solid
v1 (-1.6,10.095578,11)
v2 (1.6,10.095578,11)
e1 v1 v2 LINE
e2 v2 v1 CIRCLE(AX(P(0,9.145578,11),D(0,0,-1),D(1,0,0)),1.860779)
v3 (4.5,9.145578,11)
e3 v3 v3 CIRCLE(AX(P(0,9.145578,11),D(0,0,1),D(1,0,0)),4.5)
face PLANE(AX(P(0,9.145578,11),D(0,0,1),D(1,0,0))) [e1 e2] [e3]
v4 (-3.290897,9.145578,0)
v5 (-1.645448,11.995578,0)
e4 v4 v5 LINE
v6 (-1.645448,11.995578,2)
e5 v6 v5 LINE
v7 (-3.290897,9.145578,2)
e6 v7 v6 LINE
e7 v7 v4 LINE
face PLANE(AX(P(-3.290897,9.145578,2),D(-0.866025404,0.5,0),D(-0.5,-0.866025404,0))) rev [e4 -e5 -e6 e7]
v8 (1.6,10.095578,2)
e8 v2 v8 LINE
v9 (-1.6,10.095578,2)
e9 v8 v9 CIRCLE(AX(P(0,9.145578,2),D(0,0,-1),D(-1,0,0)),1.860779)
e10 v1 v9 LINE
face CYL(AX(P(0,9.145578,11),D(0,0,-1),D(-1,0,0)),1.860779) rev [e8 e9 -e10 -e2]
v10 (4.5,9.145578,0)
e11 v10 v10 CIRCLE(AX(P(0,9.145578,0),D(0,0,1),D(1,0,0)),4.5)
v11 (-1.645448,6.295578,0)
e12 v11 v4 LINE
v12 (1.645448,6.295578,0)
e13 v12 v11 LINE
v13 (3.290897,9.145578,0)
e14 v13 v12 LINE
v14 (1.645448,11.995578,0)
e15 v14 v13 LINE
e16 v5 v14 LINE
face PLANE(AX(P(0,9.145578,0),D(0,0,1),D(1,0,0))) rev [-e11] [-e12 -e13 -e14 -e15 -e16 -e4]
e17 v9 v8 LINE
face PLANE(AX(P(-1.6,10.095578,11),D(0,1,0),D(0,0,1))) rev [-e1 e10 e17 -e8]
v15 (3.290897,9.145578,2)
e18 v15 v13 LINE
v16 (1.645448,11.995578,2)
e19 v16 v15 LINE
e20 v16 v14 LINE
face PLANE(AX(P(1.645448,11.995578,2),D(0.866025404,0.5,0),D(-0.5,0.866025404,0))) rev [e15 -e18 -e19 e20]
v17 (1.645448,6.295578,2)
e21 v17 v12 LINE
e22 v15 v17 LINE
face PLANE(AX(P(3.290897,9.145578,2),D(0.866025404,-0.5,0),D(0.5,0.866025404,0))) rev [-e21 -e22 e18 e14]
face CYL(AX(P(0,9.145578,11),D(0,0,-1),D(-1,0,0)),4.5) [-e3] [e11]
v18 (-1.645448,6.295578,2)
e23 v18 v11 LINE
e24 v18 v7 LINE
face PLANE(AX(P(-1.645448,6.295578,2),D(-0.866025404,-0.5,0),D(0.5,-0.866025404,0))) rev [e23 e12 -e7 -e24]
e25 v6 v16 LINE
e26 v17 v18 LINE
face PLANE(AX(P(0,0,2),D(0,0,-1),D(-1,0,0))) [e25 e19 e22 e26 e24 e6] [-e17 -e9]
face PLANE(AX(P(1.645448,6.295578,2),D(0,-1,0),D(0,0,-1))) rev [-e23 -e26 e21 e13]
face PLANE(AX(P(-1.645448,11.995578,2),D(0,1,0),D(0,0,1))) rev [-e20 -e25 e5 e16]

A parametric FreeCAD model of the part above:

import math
import FreeCAD as App
import Part
import Sketcher
from FreeCAD import Vector
Q = App.Units.Quantity

doc = App.newDocument("Part")
body = doc.addObject("PartDesign::Body", "Body")

# Sketch on XY plane
sketch1 = body.newObject("Sketcher::SketchObject", "Sketch")
sketch1.AttachmentSupport = (doc.getObject("XY_Plane"), [""])
sketch1.MapMode = "FlatFace"
sketch1.addGeometry(Part.Circle(Vector(0, 9.1, 0), Vector(0, 0, 1), 4.5), False)
sketch1.addConstraint(Sketcher.Constraint("PointOnObject", 0, 3, -2))
sketch1.addConstraint(Sketcher.Constraint("Diameter", 0, Q("9 mm")))
sketch1.addConstraint(Sketcher.Constraint("DistanceY", -1, 1, 0, 3, Q("9.145578 mm")))
pad1 = body.newObject("PartDesign::Pad", "Pad")
pad1.Profile = sketch1
pad1.Length = 11

# Sketch on XY plane
sketch2 = body.newObject("Sketcher::SketchObject", "Sketch001")
sketch2.AttachmentSupport = (doc.getObject("XY_Plane"), [""])
sketch2.MapMode = "FlatFace"
sketch2.addGeometry(Part.LineSegment(Vector(-3.3, 9.1, 0), Vector(-1.6, 12, 0)), False)
sketch2.addGeometry(Part.LineSegment(Vector(-1.6, 12, 0), Vector(1.6, 12, 0)), False)
sketch2.addGeometry(Part.LineSegment(Vector(1.6, 12, 0), Vector(3.3, 9.1, 0)), False)
sketch2.addGeometry(Part.LineSegment(Vector(3.3, 9.1, 0), Vector(1.6, 6.3, 0)), False)
sketch2.addGeometry(Part.LineSegment(Vector(1.6, 6.3, 0), Vector(-1.6, 6.3, 0)), False)
sketch2.addGeometry(Part.LineSegment(Vector(-1.6, 6.3, 0), Vector(-3.3, 9.1, 0)), False)
sketch2.addConstraint(Sketcher.Constraint("Coincident", 0, 2, 1, 1))
sketch2.addConstraint(Sketcher.Constraint("Coincident", 1, 2, 2, 1))
sketch2.addConstraint(Sketcher.Constraint("Coincident", 2, 2, 3, 1))
sketch2.addConstraint(Sketcher.Constraint("Coincident", 3, 2, 4, 1))
sketch2.addConstraint(Sketcher.Constraint("Coincident", 4, 2, 5, 1))
sketch2.addConstraint(Sketcher.Constraint("Coincident", 5, 2, 0, 1))
sketch2.addConstraint(Sketcher.Constraint("Horizontal", 1))
sketch2.addConstraint(Sketcher.Constraint("Horizontal", 4))
sketch2.addConstraint(Sketcher.Constraint("Symmetric", 2, 2, 5, 2, -2))
sketch2.addConstraint(Sketcher.Constraint("Parallel", 0, 3))
sketch2.addConstraint(Sketcher.Constraint("Parallel", 2, 5))
sketch2.addConstraint(Sketcher.Constraint("Vertical", 1, 2, 3, 2))
sketch2.addConstraint(Sketcher.Constraint("Vertical", 0, 2, 4, 2))
sketch2.addConstraint(Sketcher.Constraint("Angle", 0, Q("60 deg")))
sketch2.addConstraint(Sketcher.Constraint("DistanceY", 3, 2, 1, 2, Q("5.7 mm")))
sketch2.addConstraint(Sketcher.Constraint("DistanceX", 1, 1, 1, 2, Q("3.290897 mm")))
sketch2.addConstraint(Sketcher.Constraint("DistanceY", -1, 1, 0, 2, Q("11.995578 mm")))
pocket1 = body.newObject("PartDesign::Pocket", "Pocket")
pocket1.Profile = sketch2
pocket1.Length = 2
pocket1.Reversed = True

# Sketch on XY plane
sketch3 = body.newObject("Sketcher::SketchObject", "Sketch002")
sketch3.AttachmentSupport = (doc.getObject("XY_Plane"), [""])
sketch3.MapMode = "FlatFace"
sketch3.addGeometry(Part.LineSegment(Vector(-1.6, 10.1, 0), Vector(1.6, 10.1, 0)), False)
sketch3.addGeometry(Part.ArcOfCircle(Part.Circle(Vector(0, 9.1, 0), Vector(0, 0, 1), 1.9), math.radians(149), math.radians(391)), False)
sketch3.addConstraint(Sketcher.Constraint("Coincident", 0, 1, 1, 1))
sketch3.addConstraint(Sketcher.Constraint("Coincident", 1, 2, 0, 2))
sketch3.addConstraint(Sketcher.Constraint("Horizontal", 0))
sketch3.addConstraint(Sketcher.Constraint("PointOnObject", 1, 3, -2))
sketch3.addConstraint(Sketcher.Constraint("DistanceX", 0, 1, 0, 2, Q("3.2 mm")))
sketch3.addConstraint(Sketcher.Constraint("Radius", 1, Q("1.860779 mm")))
sketch3.addConstraint(Sketcher.Constraint("DistanceY", -1, 1, 1, 3, Q("9.145578 mm")))
pocket2 = body.newObject("PartDesign::Pocket", "Pocket001")
pocket2.Profile = sketch3
pocket2.Type = "ThroughAll"
pocket2.Reversed = True

doc.recompute()
